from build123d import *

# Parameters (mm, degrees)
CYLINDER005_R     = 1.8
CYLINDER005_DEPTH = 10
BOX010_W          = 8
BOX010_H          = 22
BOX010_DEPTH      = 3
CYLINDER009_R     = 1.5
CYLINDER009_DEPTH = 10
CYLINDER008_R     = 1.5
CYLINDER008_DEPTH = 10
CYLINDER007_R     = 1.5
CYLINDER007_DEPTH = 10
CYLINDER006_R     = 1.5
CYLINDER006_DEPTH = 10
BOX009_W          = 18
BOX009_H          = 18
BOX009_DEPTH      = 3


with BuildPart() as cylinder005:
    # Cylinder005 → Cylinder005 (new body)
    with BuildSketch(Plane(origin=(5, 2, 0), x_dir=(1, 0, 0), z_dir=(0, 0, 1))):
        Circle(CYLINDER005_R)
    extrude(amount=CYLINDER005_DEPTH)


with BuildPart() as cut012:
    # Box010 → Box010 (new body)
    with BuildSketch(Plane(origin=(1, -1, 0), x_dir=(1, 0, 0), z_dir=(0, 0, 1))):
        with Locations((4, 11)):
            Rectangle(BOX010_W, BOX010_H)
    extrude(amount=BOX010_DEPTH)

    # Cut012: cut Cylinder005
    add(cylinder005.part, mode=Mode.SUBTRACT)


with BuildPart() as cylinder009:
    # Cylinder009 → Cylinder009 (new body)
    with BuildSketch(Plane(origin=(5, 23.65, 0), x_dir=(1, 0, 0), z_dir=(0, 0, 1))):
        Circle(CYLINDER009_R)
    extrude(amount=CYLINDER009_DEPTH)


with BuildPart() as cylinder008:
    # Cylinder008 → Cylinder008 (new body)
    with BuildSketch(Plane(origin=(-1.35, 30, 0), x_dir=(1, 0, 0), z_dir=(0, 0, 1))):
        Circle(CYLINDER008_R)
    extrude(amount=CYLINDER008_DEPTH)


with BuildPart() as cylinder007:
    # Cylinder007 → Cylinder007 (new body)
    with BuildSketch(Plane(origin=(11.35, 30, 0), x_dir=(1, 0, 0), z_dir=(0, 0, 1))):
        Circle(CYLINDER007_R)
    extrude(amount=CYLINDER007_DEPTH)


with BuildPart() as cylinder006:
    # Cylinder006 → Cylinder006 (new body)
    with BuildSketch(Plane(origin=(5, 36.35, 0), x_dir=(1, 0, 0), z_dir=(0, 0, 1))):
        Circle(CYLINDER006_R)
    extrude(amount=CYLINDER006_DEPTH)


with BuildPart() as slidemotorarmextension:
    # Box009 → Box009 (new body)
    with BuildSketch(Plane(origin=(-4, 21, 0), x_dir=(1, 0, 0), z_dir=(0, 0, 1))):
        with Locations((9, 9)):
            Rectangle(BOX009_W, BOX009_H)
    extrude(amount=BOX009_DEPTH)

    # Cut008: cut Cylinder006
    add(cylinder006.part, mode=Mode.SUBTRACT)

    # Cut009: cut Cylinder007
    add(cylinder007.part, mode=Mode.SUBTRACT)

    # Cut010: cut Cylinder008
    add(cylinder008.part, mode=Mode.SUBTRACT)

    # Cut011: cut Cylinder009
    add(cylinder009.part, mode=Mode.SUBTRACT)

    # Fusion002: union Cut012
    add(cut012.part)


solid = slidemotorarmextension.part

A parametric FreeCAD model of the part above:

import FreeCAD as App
import Part
import Sketcher

V = App.Vector
Q = App.Units.Quantity

doc = App.newDocument("Part")
body = doc.addObject("PartDesign::Body", "Body")

# Sketch on XY plane
sketch1 = body.newObject("Sketcher::SketchObject", "Sketch")
sketch1.AttachmentSupport = (doc.getObject("XY_Plane"), [""])
sketch1.MapMode = "FlatFace"
sketch1.addGeometry(Part.Circle(V(5, 2, 0), V(0, 0, 1), 1.8), False)
sketch1.addConstraint([
    Sketcher.Constraint("Diameter", 0, Q("3.6 mm")),
    Sketcher.Constraint("DistanceX", -1, 1, 0, 3, Q("5 mm")),
    Sketcher.Constraint("DistanceY", -1, 1, 0, 3, Q("2 mm")),
])
pad1 = body.newObject("PartDesign::Pad", "Pad")
pad1.Profile = sketch1
pad1.Length = 10
body2 = doc.addObject("PartDesign::Body", "Body001")

# Sketch on XY plane
sketch2 = body2.newObject("Sketcher::SketchObject", "Sketch001")
sketch2.AttachmentSupport = (doc.getObject("XY_Plane001"), [""])
sketch2.MapMode = "FlatFace"
sketch2.addGeometry([
    Part.LineSegment(V(1, 21, 0), V(1, -1, 0)),
    Part.LineSegment(V(1, -1, 0), V(9, -1, 0)),
    Part.LineSegment(V(9, -1, 0), V(9, 21, 0)),
    Part.LineSegment(V(9, 21, 0), V(1, 21, 0)),
], False)
sketch2.addConstraint([
    Sketcher.Constraint("Coincident", 0, 2, 1, 1),
    Sketcher.Constraint("Coincident", 1, 2, 2, 1),
    Sketcher.Constraint("Coincident", 2, 2, 3, 1),
    Sketcher.Constraint("Coincident", 3, 2, 0, 1),
    Sketcher.Constraint("Vertical", 0),
    Sketcher.Constraint("Horizontal", 1),
    Sketcher.Constraint("Vertical", 2),
    Sketcher.Constraint("Horizontal", 3),
    Sketcher.Constraint("DistanceX", 1, 1, 1, 2, Q("8 mm")),
    Sketcher.Constraint("DistanceY", 0, 2, 0, 1, Q("22 mm")),
    Sketcher.Constraint("DistanceX", -1, 1, 0, 2, Q("1 mm")),
    Sketcher.Constraint("DistanceY", 0, 2, -1, 1, Q("1 mm")),
])
pad2 = body2.newObject("PartDesign::Pad", "Pad001")
pad2.Profile = sketch2
pad2.Length = 3
doc.recompute()

boolean = body2.newObject("PartDesign::Boolean", "Boolean")
boolean.Type = "Cut"
boolean.addObjects([body])
body3 = doc.addObject("PartDesign::Body", "Body002")

# Sketch on XY plane
sketch3 = body3.newObject("Sketcher::SketchObject", "Sketch002")
sketch3.AttachmentSupport = (doc.getObject("XY_Plane002"), [""])
sketch3.MapMode = "FlatFace"
sketch3.addGeometry(Part.Circle(V(5, 23.6, 0), V(0, 0, 1), 1.5), False)
sketch3.addConstraint([
    Sketcher.Constraint("Diameter", 0, Q("3 mm")),
    Sketcher.Constraint("DistanceX", -1, 1, 0, 3, Q("5 mm")),
    Sketcher.Constraint("DistanceY", -1, 1, 0, 3, Q("23.65 mm")),
])
pad3 = body3.newObject("PartDesign::Pad", "Pad002")
pad3.Profile = sketch3
pad3.Length = 10
body4 = doc.addObject("PartDesign::Body", "Body003")

# Sketch on XY plane
sketch4 = body4.newObject("Sketcher::SketchObject", "Sketch003")
sketch4.AttachmentSupport = (doc.getObject("XY_Plane003"), [""])
sketch4.MapMode = "FlatFace"
sketch4.addGeometry(Part.Circle(V(-1.4, 30, 0), V(0, 0, 1), 1.5), False)
sketch4.addConstraint([
    Sketcher.Constraint("Diameter", 0, Q("3 mm")),
    Sketcher.Constraint("DistanceY", -1, 1, 0, 3, Q("30 mm")),
    Sketcher.Constraint("DistanceX", 0, 3, -1, 1, Q("1.35 mm")),
])
pad4 = body4.newObject("PartDesign::Pad", "Pad003")
pad4.Profile = sketch4
pad4.Length = 10
body5 = doc.addObject("PartDesign::Body", "Body004")

# Sketch on XY plane
sketch5 = body5.newObject("Sketcher::SketchObject", "Sketch004")
sketch5.AttachmentSupport = (doc.getObject("XY_Plane004"), [""])
sketch5.MapMode = "FlatFace"
sketch5.addGeometry(Part.Circle(V(11.3, 30, 0), V(0, 0, 1), 1.5), False)
sketch5.addConstraint([
    Sketcher.Constraint("Diameter", 0, Q("3 mm")),
    Sketcher.Constraint("DistanceY", -1, 1, 0, 3, Q("30 mm")),
    Sketcher.Constraint("DistanceX", -1, 1, 0, 3, Q("11.35 mm")),
])
pad5 = body5.newObject("PartDesign::Pad", "Pad004")
pad5.Profile = sketch5
pad5.Length = 10
body6 = doc.addObject("PartDesign::Body", "Body005")

# Sketch on XY plane
sketch6 = body6.newObject("Sketcher::SketchObject", "Sketch005")
sketch6.AttachmentSupport = (doc.getObject("XY_Plane005"), [""])
sketch6.MapMode = "FlatFace"
sketch6.addGeometry(Part.Circle(V(5, 36.4, 0), V(0, 0, 1), 1.5), False)
sketch6.addConstraint([
    Sketcher.Constraint("Diameter", 0, Q("3 mm")),
    Sketcher.Constraint("DistanceX", -1, 1, 0, 3, Q("5 mm")),
    Sketcher.Constraint("DistanceY", -1, 1, 0, 3, Q("36.35 mm")),
])
pad6 = body6.newObject("PartDesign::Pad", "Pad005")
pad6.Profile = sketch6
pad6.Length = 10
body7 = doc.addObject("PartDesign::Body", "Body006")

# Sketch on XY plane
sketch7 = body7.newObject("Sketcher::SketchObject", "Sketch006")
sketch7.AttachmentSupport = (doc.getObject("XY_Plane006"), [""])
sketch7.MapMode = "FlatFace"
sketch7.addGeometry([
    Part.LineSegment(V(-4, 39, 0), V(-4, 21, 0)),
    Part.LineSegment(V(-4, 21, 0), V(14, 21, 0)),
    Part.LineSegment(V(14, 21, 0), V(14, 39, 0)),
    Part.LineSegment(V(14, 39, 0), V(-4, 39, 0)),
], False)
sketch7.addConstraint([
    Sketcher.Constraint("Coincident", 0, 2, 1, 1),
    Sketcher.Constraint("Coincident", 1, 2, 2, 1),
    Sketcher.Constraint("Coincident", 2, 2, 3, 1),
    Sketcher.Constraint("Coincident", 3, 2, 0, 1),
    Sketcher.Constraint("Vertical", 0),
    Sketcher.Constraint("Horizontal", 1),
    Sketcher.Constraint("Vertical", 2),
    Sketcher.Constraint("Horizontal", 3),
    Sketcher.Constraint("Equal", 3, 0),
    Sketcher.Constraint("DistanceX", 1, 1, 1, 2, Q("18 mm")),
    Sketcher.Constraint("DistanceX", 0, 2, -1, 1, Q("4 mm")),
    Sketcher.Constraint("DistanceY", -1, 1, 0, 2, Q("21 mm")),
])
pad7 = body7.newObject("PartDesign::Pad", "Pad006")
pad7.Profile = sketch7
pad7.Length = 3
doc.recompute()

boolean2 = body7.newObject("PartDesign::Boolean", "Boolean001")
boolean2.Type = "Cut"
boolean2.addObjects([body6])
doc.recompute()

boolean3 = body7.newObject("PartDesign::Boolean", "Boolean002")
boolean3.Type = "Cut"
boolean3.addObjects([body5])
doc.recompute()

boolean4 = body7.newObject("PartDesign::Boolean", "Boolean003")
boolean4.Type = "Cut"
boolean4.addObjects([body4])
doc.recompute()

boolean5 = body7.newObject("PartDesign::Boolean", "Boolean004")
boolean5.Type = "Cut"
boolean5.addObjects([body3])
doc.recompute()

boolean6 = body7.newObject("PartDesign::Boolean", "Boolean005")
boolean6.Type = "Fuse"
boolean6.addObjects([body2])

doc.recompute()
